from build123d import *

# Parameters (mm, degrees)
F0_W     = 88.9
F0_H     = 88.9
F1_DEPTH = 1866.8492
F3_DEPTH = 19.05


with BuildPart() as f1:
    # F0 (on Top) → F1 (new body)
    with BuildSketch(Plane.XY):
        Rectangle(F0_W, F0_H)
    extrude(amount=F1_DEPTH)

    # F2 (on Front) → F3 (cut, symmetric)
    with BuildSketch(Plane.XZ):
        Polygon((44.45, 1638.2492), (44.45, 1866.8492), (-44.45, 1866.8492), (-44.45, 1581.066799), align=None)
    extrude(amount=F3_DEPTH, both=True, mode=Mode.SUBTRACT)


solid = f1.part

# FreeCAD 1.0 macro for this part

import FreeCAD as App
import Part
import Sketcher

V = App.Vector
Q = App.Units.Quantity


def add_polygon(sketch, points):
    """Adds a closed chain of lines whose ends are joined by coincident constraints."""
    first, n = sketch.GeometryCount, len(points)
    for a, b in zip(points, points[1:] + points[:1]):
        sketch.addGeometry(Part.LineSegment(App.Vector(*a, 0), App.Vector(*b, 0)), False)
    for i in range(n):
        sketch.addConstraint(Sketcher.Constraint("Coincident", first + i, 2, first + (i + 1) % n, 1))

doc = App.newDocument("Part")
body = doc.addObject("PartDesign::Body", "Body")

sketch1 = body.newObject("Sketcher::SketchObject", "Sketch")
sketch1.AttachmentSupport = (doc.getObject("XY_Plane"), [""])
sketch1.MapMode = "FlatFace"
add_polygon(sketch1, [(-44.45, 44.45), (-44.45, -44.45), (44.45, -44.45), (44.45, 44.45)])
sketch1.addConstraint(Sketcher.Constraint("Vertical", 0))
sketch1.addConstraint(Sketcher.Constraint("Horizontal", 1))
sketch1.addConstraint(Sketcher.Constraint("Vertical", 2))
sketch1.addConstraint(Sketcher.Constraint("Horizontal", 3))
sketch1.addConstraint(Sketcher.Constraint("Symmetric", 0, 2, 2, 2, -1, 1))
sketch1.addConstraint(Sketcher.Constraint("Equal", 3, 0))
sketch1.addConstraint(Sketcher.Constraint("DistanceX", 1, 1, 1, 2, Q("3.5 in")))
pad1 = body.newObject("PartDesign::Pad", "Pad")
pad1.Profile = sketch1
pad1.Length = Q("73.498 in")

sketch2 = body.newObject("Sketcher::SketchObject", "Sketch001")
sketch2.AttachmentSupport = (doc.getObject("XZ_Plane"), [""])
sketch2.MapMode = "FlatFace"
add_polygon(sketch2, [(44.45, 1638.2492), (44.45, 1866.8492), (-44.45, 1866.8492), (-44.45, 1581.066799)])
sketch2.addConstraint(Sketcher.Constraint("Vertical", 0))
sketch2.addConstraint(Sketcher.Constraint("Horizontal", 1))
sketch2.addConstraint(Sketcher.Constraint("Vertical", 2))
sketch2.addConstraint(Sketcher.Constraint("DistanceY", 0, 1, 0, 2, Q("9 in")))
sketch2.addConstraint(Sketcher.Constraint("DistanceX", 1, 2, 1, 1, Q("3.5 in")))
sketch2.addConstraint(Sketcher.Constraint("DistanceX", -1, 1, 0, 2, Q("1.75 in")))
sketch2.addConstraint(Sketcher.Constraint("Angle", 3, Q("32.75 deg")))
sketch2.addConstraint(Sketcher.Constraint("DistanceY", -1, 1, 0, 2, Q("73.498 in")))
pocket1 = body.newObject("PartDesign::Pocket", "Pocket")
pocket1.Profile = sketch2
pocket1.Length = Q("1.5 in")
pocket1.Midplane = True

doc.recompute()
